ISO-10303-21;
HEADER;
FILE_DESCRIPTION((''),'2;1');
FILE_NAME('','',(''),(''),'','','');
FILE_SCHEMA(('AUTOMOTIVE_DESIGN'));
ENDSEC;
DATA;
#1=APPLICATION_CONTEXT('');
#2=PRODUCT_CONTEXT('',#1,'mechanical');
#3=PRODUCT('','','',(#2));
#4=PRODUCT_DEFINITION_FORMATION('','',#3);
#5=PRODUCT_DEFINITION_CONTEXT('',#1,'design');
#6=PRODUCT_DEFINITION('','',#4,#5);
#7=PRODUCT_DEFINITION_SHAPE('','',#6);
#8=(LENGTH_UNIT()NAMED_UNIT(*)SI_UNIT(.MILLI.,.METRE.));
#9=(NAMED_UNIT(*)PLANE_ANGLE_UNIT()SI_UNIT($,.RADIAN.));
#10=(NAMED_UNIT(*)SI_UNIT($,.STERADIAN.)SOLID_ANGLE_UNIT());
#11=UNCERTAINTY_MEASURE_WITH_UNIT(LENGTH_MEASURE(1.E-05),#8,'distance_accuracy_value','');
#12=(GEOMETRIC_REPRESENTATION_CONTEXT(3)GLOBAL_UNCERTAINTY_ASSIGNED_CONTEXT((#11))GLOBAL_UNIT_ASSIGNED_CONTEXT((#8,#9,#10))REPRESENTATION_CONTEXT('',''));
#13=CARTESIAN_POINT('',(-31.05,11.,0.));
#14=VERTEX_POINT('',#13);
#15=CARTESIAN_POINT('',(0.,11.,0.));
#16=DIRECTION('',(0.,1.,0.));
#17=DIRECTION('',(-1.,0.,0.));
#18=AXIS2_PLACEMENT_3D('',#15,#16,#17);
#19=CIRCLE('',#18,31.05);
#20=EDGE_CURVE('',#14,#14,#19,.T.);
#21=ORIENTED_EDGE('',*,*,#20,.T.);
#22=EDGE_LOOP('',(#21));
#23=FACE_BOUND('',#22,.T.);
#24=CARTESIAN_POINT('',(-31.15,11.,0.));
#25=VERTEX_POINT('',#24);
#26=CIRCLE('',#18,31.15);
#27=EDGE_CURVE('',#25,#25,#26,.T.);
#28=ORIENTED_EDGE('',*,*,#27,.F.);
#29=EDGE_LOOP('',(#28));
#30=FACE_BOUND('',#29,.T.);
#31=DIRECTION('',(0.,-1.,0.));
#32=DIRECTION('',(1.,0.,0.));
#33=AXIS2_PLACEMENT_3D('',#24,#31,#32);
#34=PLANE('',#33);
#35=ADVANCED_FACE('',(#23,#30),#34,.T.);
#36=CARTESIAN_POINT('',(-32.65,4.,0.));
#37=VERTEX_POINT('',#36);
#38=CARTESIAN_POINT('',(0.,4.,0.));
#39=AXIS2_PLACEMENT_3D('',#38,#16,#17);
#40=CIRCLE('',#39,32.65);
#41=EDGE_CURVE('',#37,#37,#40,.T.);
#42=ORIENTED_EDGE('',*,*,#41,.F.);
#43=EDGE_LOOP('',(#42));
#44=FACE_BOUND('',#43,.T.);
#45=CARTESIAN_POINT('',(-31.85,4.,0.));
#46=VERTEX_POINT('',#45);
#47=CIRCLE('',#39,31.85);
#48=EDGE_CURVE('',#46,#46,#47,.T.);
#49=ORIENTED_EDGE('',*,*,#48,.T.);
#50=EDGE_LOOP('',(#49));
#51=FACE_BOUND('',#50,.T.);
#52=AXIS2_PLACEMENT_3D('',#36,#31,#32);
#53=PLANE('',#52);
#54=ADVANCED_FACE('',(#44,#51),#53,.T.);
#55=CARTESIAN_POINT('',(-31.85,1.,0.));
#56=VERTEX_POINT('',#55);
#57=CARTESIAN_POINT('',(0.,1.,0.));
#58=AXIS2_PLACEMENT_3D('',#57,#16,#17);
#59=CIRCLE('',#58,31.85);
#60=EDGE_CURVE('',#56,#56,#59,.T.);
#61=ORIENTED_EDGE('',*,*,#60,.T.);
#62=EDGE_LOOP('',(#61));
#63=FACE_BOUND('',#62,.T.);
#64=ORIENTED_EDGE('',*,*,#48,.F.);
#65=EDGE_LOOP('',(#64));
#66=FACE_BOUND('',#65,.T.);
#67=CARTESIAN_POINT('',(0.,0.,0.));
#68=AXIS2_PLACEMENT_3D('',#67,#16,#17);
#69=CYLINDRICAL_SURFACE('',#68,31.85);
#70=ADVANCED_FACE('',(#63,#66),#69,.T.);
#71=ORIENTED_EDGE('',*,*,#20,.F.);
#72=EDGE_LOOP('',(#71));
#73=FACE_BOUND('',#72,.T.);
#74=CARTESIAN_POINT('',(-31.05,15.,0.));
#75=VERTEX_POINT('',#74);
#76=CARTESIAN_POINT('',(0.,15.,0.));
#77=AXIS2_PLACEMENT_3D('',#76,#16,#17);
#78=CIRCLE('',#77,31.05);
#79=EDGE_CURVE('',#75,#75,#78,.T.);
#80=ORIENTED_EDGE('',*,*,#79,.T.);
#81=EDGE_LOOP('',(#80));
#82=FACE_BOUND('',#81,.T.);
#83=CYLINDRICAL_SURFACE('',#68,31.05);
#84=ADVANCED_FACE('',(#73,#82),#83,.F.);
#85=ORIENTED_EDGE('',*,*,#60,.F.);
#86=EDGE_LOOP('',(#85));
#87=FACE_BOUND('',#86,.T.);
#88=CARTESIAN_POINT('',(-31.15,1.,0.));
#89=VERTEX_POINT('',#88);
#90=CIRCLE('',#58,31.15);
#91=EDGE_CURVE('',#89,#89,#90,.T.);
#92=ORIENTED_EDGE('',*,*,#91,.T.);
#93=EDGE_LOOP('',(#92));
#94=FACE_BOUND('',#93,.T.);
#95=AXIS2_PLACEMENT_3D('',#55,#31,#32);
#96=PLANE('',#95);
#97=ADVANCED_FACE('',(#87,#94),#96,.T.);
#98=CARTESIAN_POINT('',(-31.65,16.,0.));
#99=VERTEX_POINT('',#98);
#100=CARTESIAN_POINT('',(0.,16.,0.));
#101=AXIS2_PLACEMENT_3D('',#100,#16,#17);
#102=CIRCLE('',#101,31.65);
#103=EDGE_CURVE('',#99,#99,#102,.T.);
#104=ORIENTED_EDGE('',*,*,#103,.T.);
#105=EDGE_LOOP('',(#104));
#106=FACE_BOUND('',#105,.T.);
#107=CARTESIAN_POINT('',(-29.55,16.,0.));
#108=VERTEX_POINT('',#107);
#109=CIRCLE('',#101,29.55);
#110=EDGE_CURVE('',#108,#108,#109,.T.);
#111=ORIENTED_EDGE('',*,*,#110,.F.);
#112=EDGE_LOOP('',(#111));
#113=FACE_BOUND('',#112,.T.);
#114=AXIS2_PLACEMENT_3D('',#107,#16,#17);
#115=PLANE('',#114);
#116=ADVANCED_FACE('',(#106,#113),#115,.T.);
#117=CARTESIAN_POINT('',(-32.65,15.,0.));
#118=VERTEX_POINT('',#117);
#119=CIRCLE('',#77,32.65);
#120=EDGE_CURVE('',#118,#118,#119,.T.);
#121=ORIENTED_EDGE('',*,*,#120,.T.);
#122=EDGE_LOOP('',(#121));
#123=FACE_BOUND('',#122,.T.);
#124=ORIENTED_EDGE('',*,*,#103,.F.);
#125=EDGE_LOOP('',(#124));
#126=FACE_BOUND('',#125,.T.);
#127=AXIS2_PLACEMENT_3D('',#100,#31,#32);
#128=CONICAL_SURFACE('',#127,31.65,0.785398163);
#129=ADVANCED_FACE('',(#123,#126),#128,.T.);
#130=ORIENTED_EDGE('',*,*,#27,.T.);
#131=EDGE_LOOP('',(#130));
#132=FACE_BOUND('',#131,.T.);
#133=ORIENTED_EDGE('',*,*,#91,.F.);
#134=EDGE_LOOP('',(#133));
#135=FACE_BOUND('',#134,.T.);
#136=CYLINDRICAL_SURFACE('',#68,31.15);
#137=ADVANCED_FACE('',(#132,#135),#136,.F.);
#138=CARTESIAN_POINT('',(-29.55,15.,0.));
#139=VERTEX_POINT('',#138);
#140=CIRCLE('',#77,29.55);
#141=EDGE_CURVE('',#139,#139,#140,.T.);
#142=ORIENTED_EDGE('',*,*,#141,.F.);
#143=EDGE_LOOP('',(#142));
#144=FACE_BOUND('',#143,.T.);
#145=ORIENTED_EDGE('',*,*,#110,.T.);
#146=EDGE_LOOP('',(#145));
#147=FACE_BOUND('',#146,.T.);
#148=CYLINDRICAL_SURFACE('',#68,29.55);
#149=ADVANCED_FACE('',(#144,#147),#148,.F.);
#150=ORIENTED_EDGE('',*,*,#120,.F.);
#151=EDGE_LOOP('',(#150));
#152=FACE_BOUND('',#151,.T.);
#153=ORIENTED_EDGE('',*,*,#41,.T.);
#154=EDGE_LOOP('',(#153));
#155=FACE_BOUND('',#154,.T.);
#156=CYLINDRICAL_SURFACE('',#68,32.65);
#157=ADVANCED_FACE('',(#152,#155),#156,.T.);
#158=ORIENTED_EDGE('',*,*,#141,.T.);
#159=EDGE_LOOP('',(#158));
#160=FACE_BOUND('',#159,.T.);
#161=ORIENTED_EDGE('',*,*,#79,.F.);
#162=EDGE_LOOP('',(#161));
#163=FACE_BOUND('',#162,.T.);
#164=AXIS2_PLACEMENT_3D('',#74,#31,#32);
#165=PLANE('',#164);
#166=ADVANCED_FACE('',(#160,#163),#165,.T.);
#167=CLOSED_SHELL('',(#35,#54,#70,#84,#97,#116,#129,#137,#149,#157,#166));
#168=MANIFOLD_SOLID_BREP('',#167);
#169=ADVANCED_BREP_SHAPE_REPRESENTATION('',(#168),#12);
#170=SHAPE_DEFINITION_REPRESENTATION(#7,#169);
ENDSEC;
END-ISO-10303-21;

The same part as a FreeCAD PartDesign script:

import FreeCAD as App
import Part
import Sketcher

V = App.Vector
Q = App.Units.Quantity

doc = App.newDocument("Part")
params = doc.addObject("Spreadsheet::Sheet", "Params")
for row, (alias, value) in enumerate([
    ("sketch1_height", "3 mm"),
    ("sketch1_height2", "10 mm"),
    ("sketch1_height3", "4 mm"),
    ("sketch1_height4", "1 mm"),
    ("sketch1_width", "0.8 mm"),
    ("revolution_angle", "360 deg"),
], start=1):
    params.set(f"A{row}", alias)
    params.set(f"B{row}", "=" + value)
    params.setAlias(f"B{row}", alias)

body = doc.addObject("PartDesign::Body", "Body")

# Sketch on XY plane
sketch1 = body.newObject("Sketcher::SketchObject", "Sketch")
sketch1.AttachmentSupport = (doc.getObject("XY_Plane"), [""])
sketch1.MapMode = "FlatFace"
sketch1.addGeometry(Part.LineSegment(V(-32.65, 4, 0), V(-31.85, 4, 0)), False)
sketch1.addGeometry(Part.LineSegment(V(-31.85, 4, 0), V(-31.85, 1, 0)), False)
sketch1.addGeometry(Part.LineSegment(V(-31.85, 1, 0), V(-31.15, 1, 0)), False)
sketch1.addGeometry(Part.LineSegment(V(-31.15, 1, 0), V(-31.15, 11, 0)), False)
sketch1.addGeometry(Part.LineSegment(V(-31.15, 11, 0), V(-31.05, 11, 0)), False)
sketch1.addGeometry(Part.LineSegment(V(-31.05, 11, 0), V(-31.05, 15, 0)), False)
sketch1.addGeometry(Part.LineSegment(V(-31.05, 15, 0), V(-29.55, 15, 0)), False)
sketch1.addGeometry(Part.LineSegment(V(-29.55, 15, 0), V(-29.55, 16, 0)), False)
sketch1.addGeometry(Part.LineSegment(V(-29.55, 16, 0), V(-31.65, 16, 0)), False)
sketch1.addGeometry(Part.LineSegment(V(-31.65, 16, 0), V(-32.65, 15, 0)), False)
sketch1.addGeometry(Part.LineSegment(V(-32.65, 15, 0), V(-32.65, 4, 0)), False)
sketch1.addConstraint(Sketcher.Constraint("Coincident", 0, 2, 1, 1))
sketch1.addConstraint(Sketcher.Constraint("Coincident", 1, 2, 2, 1))
sketch1.addConstraint(Sketcher.Constraint("Coincident", 2, 2, 3, 1))
sketch1.addConstraint(Sketcher.Constraint("Coincident", 3, 2, 4, 1))
sketch1.addConstraint(Sketcher.Constraint("Coincident", 4, 2, 5, 1))
sketch1.addConstraint(Sketcher.Constraint("Coincident", 5, 2, 6, 1))
sketch1.addConstraint(Sketcher.Constraint("Coincident", 6, 2, 7, 1))
sketch1.addConstraint(Sketcher.Constraint("Coincident", 7, 2, 8, 1))
sketch1.addConstraint(Sketcher.Constraint("Coincident", 8, 2, 9, 1))
sketch1.addConstraint(Sketcher.Constraint("Coincident", 9, 2, 10, 1))
sketch1.addConstraint(Sketcher.Constraint("Coincident", 10, 2, 0, 1))
sketch1.addConstraint(Sketcher.Constraint("Horizontal", 0))
sketch1.addConstraint(Sketcher.Constraint("Vertical", 1))
sketch1.addConstraint(Sketcher.Constraint("Horizontal", 2))
sketch1.addConstraint(Sketcher.Constraint("Vertical", 3))
sketch1.addConstraint(Sketcher.Constraint("Horizontal", 4))
sketch1.addConstraint(Sketcher.Constraint("Vertical", 5))
sketch1.addConstraint(Sketcher.Constraint("Horizontal", 6))
sketch1.addConstraint(Sketcher.Constraint("Vertical", 7))
sketch1.addConstraint(Sketcher.Constraint("Horizontal", 8))
sketch1.addConstraint(Sketcher.Constraint("Vertical", 10))
sketch1.addConstraint(Sketcher.Constraint("Horizontal", 6, 2, 9, 2))
sketch1.addConstraint(Sketcher.Constraint("DistanceY", 1, 2, 1, 1, Q("3 mm")))
sketch1.addConstraint(Sketcher.Constraint("DistanceY", 3, 1, 3, 2, Q("10 mm")))
sketch1.addConstraint(Sketcher.Constraint("DistanceY", 5, 1, 5, 2, Q("4 mm")))
sketch1.addConstraint(Sketcher.Constraint("DistanceY", 7, 1, 7, 2, Q("1 mm")))
sketch1.addConstraint(Sketcher.Constraint("Angle", 9, Q("-135 deg")))
sketch1.addConstraint(Sketcher.Constraint("DistanceX", 0, 1, 0, 2, Q("0.8 mm")))
sketch1.addConstraint(Sketcher.Constraint("DistanceX", 2, 1, 2, 2, Q("0.7 mm")))
sketch1.addConstraint(Sketcher.Constraint("DistanceX", 4, 1, 4, 2, Q("0.1 mm")))
sketch1.addConstraint(Sketcher.Constraint("DistanceX", 6, 1, 6, 2, Q("1.5 mm")))
sketch1.addConstraint(Sketcher.Constraint("DistanceY", -1, 1, 0, 2, Q("4 mm")))
sketch1.addConstraint(Sketcher.Constraint("DistanceX", 0, 2, -1, 1, Q("31.85 mm")))
sketch1.setExpression("Constraints[22]", "Params.sketch1_height")
sketch1.setExpression("Constraints[23]", "Params.sketch1_height2")
sketch1.setExpression("Constraints[24]", "Params.sketch1_height3")
sketch1.setExpression("Constraints[25]", "Params.sketch1_height4")
sketch1.setExpression("Constraints[27]", "Params.sketch1_width")
revolution = body.newObject("PartDesign::Revolution", "Revolution")
revolution.Profile = sketch1
revolution.ReferenceAxis = (sketch1, ["V_Axis"])
revolution.setExpression("Angle", "Params.revolution_angle")

doc.recompute()
